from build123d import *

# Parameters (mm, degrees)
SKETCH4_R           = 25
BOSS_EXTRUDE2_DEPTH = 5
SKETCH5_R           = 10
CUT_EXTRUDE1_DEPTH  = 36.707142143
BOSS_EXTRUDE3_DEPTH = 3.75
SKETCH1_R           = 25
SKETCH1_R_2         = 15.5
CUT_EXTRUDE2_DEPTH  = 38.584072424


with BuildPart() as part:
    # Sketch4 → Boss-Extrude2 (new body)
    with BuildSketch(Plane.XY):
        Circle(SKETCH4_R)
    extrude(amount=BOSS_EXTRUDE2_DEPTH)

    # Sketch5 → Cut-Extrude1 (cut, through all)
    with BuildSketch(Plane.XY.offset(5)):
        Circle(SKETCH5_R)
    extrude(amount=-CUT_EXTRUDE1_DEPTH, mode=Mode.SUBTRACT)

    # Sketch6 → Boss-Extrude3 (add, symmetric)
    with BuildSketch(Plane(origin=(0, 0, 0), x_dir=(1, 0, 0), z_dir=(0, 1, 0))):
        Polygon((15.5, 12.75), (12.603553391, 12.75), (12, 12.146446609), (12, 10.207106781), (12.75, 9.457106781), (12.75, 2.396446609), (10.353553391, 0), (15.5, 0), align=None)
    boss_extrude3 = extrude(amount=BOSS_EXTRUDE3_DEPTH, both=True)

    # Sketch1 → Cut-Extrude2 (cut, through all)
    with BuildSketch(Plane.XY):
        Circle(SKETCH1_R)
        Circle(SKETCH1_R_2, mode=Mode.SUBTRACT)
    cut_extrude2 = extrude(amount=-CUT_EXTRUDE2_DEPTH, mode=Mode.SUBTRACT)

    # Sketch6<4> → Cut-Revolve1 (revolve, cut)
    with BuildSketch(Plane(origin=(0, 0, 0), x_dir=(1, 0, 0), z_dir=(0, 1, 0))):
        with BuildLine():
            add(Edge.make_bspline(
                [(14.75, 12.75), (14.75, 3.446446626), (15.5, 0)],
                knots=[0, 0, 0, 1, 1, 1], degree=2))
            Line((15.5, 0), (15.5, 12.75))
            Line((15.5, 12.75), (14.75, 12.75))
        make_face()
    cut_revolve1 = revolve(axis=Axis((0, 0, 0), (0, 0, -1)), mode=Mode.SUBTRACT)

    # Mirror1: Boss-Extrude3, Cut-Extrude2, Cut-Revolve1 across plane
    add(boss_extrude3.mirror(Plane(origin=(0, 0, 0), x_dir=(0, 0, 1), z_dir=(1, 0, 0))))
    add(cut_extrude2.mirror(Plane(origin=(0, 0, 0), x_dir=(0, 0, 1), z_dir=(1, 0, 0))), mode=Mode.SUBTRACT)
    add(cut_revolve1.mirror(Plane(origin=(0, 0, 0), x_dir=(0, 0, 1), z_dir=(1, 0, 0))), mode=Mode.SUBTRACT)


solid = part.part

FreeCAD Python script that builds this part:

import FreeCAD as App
import Part
import Sketcher
Q = App.Units.Quantity

doc = App.newDocument("Part")
params = doc.addObject("Spreadsheet::Sheet", "Params")
for row, (alias, value) in enumerate([
    ("sketch1_diameter", "50 mm"),
    ("pad1_length", "5 mm"),
    ("sketch2_diameter", "20 mm"),
    ("sketch3_height", "12.75 mm"),
    ("pad2_length", "7.5 mm"),
    ("sketch4_diameter", "50 mm"),
    ("sketch4_diameter2", "31 mm"),
    ("groove_angle", "360 deg"),
], start=1):
    params.set(f"A{row}", alias)
    params.set(f"B{row}", "=" + value)
    params.setAlias(f"B{row}", alias)

body = doc.addObject("PartDesign::Body", "Body")

# Sketch on XY plane
sketch1 = body.newObject("Sketcher::SketchObject", "Sketch")
sketch1.AttachmentSupport = (doc.getObject("XY_Plane"), [""])
sketch1.MapMode = "FlatFace"
sketch1.addGeometry(Part.Circle(App.Vector(0, 0, 0), App.Vector(0, 0, 1), 25), False)
sketch1.addConstraint(Sketcher.Constraint("Coincident", 0, 3, -1, 1))
sketch1.addConstraint(Sketcher.Constraint("Diameter", 0, 50.0))
sketch1.setExpression("Constraints[1]", "Params.sketch1_diameter")
pad1 = body.newObject("PartDesign::Pad", "Pad")
pad1.Profile = sketch1
pad1.setExpression("Length", "Params.pad1_length")

# Sketch on XY plane
sketch2 = body.newObject("Sketcher::SketchObject", "Sketch001")
sketch2.AttachmentSupport = (doc.getObject("XY_Plane"), [""])
sketch2.MapMode = "FlatFace"
sketch2.AttachmentOffset = App.Placement(App.Vector(0, 0, 5), App.Rotation())
sketch2.addGeometry(Part.Circle(App.Vector(0, 0, 0), App.Vector(0, 0, 1), 10), False)
sketch2.addConstraint(Sketcher.Constraint("Coincident", 0, 3, -1, 1))
sketch2.addConstraint(Sketcher.Constraint("Diameter", 0, 20.0))
sketch2.setExpression("Constraints[1]", "Params.sketch2_diameter")
pocket1 = body.newObject("PartDesign::Pocket", "Pocket")
pocket1.Profile = sketch2
pocket1.Type = "ThroughAll"

# Sketch on XZ plane
sketch3 = body.newObject("Sketcher::SketchObject", "Sketch002")
sketch3.AttachmentSupport = (doc.getObject("XZ_Plane"), [""])
sketch3.MapMode = "FlatFace"
sketch3.addGeometry(Part.LineSegment(App.Vector(15.5, -12.75, 0), App.Vector(12.603553, -12.75, 0)), False)
sketch3.addGeometry(Part.LineSegment(App.Vector(12.603553, -12.75, 0), App.Vector(12, -12.146447, 0)), False)
sketch3.addGeometry(Part.LineSegment(App.Vector(12, -12.146447, 0), App.Vector(12, -10.207107, 0)), False)
sketch3.addGeometry(Part.LineSegment(App.Vector(12, -10.207107, 0), App.Vector(12.75, -9.457107, 0)), False)
sketch3.addGeometry(Part.LineSegment(App.Vector(12.75, -9.457107, 0), App.Vector(12.75, -2.396447, 0)), False)
sketch3.addGeometry(Part.LineSegment(App.Vector(12.75, -2.396447, 0), App.Vector(10.353553, 0, 0)), False)
sketch3.addGeometry(Part.LineSegment(App.Vector(10.353553, 0, 0), App.Vector(15.5, 0, 0)), False)
sketch3.addGeometry(Part.LineSegment(App.Vector(15.5, 0, 0), App.Vector(15.5, -12.75, 0)), False)
sketch3.addConstraint(Sketcher.Constraint("Coincident", 0, 2, 1, 1))
sketch3.addConstraint(Sketcher.Constraint("Coincident", 1, 2, 2, 1))
sketch3.addConstraint(Sketcher.Constraint("Coincident", 2, 2, 3, 1))
sketch3.addConstraint(Sketcher.Constraint("Coincident", 3, 2, 4, 1))
sketch3.addConstraint(Sketcher.Constraint("Coincident", 4, 2, 5, 1))
sketch3.addConstraint(Sketcher.Constraint("Coincident", 5, 2, 6, 1))
sketch3.addConstraint(Sketcher.Constraint("Coincident", 6, 2, 7, 1))
sketch3.addConstraint(Sketcher.Constraint("Coincident", 7, 2, 0, 1))
sketch3.addConstraint(Sketcher.Constraint("Horizontal", 0))
sketch3.addConstraint(Sketcher.Constraint("Vertical", 2))
sketch3.addConstraint(Sketcher.Constraint("Vertical", 4))
sketch3.addConstraint(Sketcher.Constraint("Horizontal", 6))
sketch3.addConstraint(Sketcher.Constraint("Vertical", 7))
sketch3.addConstraint(Sketcher.Constraint("PointOnObject", 5, 2, -1))
sketch3.addConstraint(Sketcher.Constraint("Perpendicular", 1, 3))
sketch3.addConstraint(Sketcher.Constraint("Perpendicular", 3, 5))
sketch3.addConstraint(Sketcher.Constraint("Angle", 1, Q("135 deg")))
sketch3.addConstraint(Sketcher.Constraint("DistanceX", -1, 1, 1, 2, 12.0))
sketch3.addConstraint(Sketcher.Constraint("DistanceY", 7, 2, 7, 1, 12.75))
sketch3.addConstraint(Sketcher.Constraint("DistanceX", -1, 1, 6, 2, 15.5))
sketch3.addConstraint(Sketcher.Constraint("DistanceX", -1, 1, 3, 2, 12.75))
sketch3.addConstraint(Sketcher.Constraint("DistanceY", 1, 2, 4, 2, 9.75))
sketch3.addConstraint(Sketcher.Constraint("DistanceY", 2, 1, 2, 2, 1.93934))
sketch3.addConstraint(Sketcher.Constraint("DistanceX", 0, 2, 0, 1, 2.896447))
sketch3.setExpression("Constraints[18]", "Params.sketch3_height")
pad2 = body.newObject("PartDesign::Pad", "Pad001")
pad2.Profile = sketch3
pad2.setExpression("Length", "Params.pad2_length")
pad2.Midplane = True

# Sketch on XY plane
sketch4 = body.newObject("Sketcher::SketchObject", "Sketch003")
sketch4.AttachmentSupport = (doc.getObject("XY_Plane"), [""])
sketch4.MapMode = "FlatFace"
sketch4.addGeometry(Part.Circle(App.Vector(0, 0, 0), App.Vector(0, 0, 1), 25), False)
sketch4.addGeometry(Part.Circle(App.Vector(0, 0, 0), App.Vector(0, 0, 1), 15.5), False)
sketch4.addConstraint(Sketcher.Constraint("Coincident", 0, 3, -1, 1))
sketch4.addConstraint(Sketcher.Constraint("Coincident", 1, 3, -1, 1))
sketch4.addConstraint(Sketcher.Constraint("Diameter", 0, 50.0))
sketch4.addConstraint(Sketcher.Constraint("Diameter", 1, 31.0))
sketch4.setExpression("Constraints[2]", "Params.sketch4_diameter")
sketch4.setExpression("Constraints[3]", "Params.sketch4_diameter2")
pocket2 = body.newObject("PartDesign::Pocket", "Pocket001")
pocket2.Profile = sketch4
pocket2.Type = "ThroughAll"

# Sketch on XZ plane
sketch5 = body.newObject("Sketcher::SketchObject", "Sketch004")
sketch5.AttachmentSupport = (doc.getObject("XZ_Plane"), [""])
sketch5.MapMode = "FlatFace"
sketch5.addGeometry(Part.BSplineCurve([App.Vector(14.75, -12.75, 0), App.Vector(14.75, -3.446447, 0), App.Vector(15.5, 0, 0)], [3, 3], [0, 1], False, 2, [1, 1, 1], False), False)
sketch5.addGeometry(Part.LineSegment(App.Vector(15.5, 0, 0), App.Vector(15.5, -12.75, 0)), False)
sketch5.addGeometry(Part.LineSegment(App.Vector(15.5, -12.75, 0), App.Vector(14.75, -12.75, 0)), False)
sketch5.addConstraint(Sketcher.Constraint("Block", 0))
sketch5.addConstraint(Sketcher.Constraint("Coincident", 0, 2, 1, 1))
sketch5.addConstraint(Sketcher.Constraint("Coincident", 1, 2, 2, 1))
sketch5.addConstraint(Sketcher.Constraint("Coincident", 2, 2, 0, 1))
sketch5.addConstraint(Sketcher.Constraint("Vertical", 1))
sketch5.addConstraint(Sketcher.Constraint("Horizontal", 2))
groove = body.newObject("PartDesign::Groove", "Groove")
groove.Profile = sketch5
groove.ReferenceAxis = (sketch5, ["V_Axis"])
groove.setExpression("Angle", "Params.groove_angle")
doc.recompute()

mirrored = body.newObject("PartDesign::Mirrored", "Mirrored")
mirrored.Originals = [pad2, pocket2, groove]
mirrored.MirrorPlane = (doc.getObject("YZ_Plane"), [""])
body.Tip = mirrored

doc.recompute()
